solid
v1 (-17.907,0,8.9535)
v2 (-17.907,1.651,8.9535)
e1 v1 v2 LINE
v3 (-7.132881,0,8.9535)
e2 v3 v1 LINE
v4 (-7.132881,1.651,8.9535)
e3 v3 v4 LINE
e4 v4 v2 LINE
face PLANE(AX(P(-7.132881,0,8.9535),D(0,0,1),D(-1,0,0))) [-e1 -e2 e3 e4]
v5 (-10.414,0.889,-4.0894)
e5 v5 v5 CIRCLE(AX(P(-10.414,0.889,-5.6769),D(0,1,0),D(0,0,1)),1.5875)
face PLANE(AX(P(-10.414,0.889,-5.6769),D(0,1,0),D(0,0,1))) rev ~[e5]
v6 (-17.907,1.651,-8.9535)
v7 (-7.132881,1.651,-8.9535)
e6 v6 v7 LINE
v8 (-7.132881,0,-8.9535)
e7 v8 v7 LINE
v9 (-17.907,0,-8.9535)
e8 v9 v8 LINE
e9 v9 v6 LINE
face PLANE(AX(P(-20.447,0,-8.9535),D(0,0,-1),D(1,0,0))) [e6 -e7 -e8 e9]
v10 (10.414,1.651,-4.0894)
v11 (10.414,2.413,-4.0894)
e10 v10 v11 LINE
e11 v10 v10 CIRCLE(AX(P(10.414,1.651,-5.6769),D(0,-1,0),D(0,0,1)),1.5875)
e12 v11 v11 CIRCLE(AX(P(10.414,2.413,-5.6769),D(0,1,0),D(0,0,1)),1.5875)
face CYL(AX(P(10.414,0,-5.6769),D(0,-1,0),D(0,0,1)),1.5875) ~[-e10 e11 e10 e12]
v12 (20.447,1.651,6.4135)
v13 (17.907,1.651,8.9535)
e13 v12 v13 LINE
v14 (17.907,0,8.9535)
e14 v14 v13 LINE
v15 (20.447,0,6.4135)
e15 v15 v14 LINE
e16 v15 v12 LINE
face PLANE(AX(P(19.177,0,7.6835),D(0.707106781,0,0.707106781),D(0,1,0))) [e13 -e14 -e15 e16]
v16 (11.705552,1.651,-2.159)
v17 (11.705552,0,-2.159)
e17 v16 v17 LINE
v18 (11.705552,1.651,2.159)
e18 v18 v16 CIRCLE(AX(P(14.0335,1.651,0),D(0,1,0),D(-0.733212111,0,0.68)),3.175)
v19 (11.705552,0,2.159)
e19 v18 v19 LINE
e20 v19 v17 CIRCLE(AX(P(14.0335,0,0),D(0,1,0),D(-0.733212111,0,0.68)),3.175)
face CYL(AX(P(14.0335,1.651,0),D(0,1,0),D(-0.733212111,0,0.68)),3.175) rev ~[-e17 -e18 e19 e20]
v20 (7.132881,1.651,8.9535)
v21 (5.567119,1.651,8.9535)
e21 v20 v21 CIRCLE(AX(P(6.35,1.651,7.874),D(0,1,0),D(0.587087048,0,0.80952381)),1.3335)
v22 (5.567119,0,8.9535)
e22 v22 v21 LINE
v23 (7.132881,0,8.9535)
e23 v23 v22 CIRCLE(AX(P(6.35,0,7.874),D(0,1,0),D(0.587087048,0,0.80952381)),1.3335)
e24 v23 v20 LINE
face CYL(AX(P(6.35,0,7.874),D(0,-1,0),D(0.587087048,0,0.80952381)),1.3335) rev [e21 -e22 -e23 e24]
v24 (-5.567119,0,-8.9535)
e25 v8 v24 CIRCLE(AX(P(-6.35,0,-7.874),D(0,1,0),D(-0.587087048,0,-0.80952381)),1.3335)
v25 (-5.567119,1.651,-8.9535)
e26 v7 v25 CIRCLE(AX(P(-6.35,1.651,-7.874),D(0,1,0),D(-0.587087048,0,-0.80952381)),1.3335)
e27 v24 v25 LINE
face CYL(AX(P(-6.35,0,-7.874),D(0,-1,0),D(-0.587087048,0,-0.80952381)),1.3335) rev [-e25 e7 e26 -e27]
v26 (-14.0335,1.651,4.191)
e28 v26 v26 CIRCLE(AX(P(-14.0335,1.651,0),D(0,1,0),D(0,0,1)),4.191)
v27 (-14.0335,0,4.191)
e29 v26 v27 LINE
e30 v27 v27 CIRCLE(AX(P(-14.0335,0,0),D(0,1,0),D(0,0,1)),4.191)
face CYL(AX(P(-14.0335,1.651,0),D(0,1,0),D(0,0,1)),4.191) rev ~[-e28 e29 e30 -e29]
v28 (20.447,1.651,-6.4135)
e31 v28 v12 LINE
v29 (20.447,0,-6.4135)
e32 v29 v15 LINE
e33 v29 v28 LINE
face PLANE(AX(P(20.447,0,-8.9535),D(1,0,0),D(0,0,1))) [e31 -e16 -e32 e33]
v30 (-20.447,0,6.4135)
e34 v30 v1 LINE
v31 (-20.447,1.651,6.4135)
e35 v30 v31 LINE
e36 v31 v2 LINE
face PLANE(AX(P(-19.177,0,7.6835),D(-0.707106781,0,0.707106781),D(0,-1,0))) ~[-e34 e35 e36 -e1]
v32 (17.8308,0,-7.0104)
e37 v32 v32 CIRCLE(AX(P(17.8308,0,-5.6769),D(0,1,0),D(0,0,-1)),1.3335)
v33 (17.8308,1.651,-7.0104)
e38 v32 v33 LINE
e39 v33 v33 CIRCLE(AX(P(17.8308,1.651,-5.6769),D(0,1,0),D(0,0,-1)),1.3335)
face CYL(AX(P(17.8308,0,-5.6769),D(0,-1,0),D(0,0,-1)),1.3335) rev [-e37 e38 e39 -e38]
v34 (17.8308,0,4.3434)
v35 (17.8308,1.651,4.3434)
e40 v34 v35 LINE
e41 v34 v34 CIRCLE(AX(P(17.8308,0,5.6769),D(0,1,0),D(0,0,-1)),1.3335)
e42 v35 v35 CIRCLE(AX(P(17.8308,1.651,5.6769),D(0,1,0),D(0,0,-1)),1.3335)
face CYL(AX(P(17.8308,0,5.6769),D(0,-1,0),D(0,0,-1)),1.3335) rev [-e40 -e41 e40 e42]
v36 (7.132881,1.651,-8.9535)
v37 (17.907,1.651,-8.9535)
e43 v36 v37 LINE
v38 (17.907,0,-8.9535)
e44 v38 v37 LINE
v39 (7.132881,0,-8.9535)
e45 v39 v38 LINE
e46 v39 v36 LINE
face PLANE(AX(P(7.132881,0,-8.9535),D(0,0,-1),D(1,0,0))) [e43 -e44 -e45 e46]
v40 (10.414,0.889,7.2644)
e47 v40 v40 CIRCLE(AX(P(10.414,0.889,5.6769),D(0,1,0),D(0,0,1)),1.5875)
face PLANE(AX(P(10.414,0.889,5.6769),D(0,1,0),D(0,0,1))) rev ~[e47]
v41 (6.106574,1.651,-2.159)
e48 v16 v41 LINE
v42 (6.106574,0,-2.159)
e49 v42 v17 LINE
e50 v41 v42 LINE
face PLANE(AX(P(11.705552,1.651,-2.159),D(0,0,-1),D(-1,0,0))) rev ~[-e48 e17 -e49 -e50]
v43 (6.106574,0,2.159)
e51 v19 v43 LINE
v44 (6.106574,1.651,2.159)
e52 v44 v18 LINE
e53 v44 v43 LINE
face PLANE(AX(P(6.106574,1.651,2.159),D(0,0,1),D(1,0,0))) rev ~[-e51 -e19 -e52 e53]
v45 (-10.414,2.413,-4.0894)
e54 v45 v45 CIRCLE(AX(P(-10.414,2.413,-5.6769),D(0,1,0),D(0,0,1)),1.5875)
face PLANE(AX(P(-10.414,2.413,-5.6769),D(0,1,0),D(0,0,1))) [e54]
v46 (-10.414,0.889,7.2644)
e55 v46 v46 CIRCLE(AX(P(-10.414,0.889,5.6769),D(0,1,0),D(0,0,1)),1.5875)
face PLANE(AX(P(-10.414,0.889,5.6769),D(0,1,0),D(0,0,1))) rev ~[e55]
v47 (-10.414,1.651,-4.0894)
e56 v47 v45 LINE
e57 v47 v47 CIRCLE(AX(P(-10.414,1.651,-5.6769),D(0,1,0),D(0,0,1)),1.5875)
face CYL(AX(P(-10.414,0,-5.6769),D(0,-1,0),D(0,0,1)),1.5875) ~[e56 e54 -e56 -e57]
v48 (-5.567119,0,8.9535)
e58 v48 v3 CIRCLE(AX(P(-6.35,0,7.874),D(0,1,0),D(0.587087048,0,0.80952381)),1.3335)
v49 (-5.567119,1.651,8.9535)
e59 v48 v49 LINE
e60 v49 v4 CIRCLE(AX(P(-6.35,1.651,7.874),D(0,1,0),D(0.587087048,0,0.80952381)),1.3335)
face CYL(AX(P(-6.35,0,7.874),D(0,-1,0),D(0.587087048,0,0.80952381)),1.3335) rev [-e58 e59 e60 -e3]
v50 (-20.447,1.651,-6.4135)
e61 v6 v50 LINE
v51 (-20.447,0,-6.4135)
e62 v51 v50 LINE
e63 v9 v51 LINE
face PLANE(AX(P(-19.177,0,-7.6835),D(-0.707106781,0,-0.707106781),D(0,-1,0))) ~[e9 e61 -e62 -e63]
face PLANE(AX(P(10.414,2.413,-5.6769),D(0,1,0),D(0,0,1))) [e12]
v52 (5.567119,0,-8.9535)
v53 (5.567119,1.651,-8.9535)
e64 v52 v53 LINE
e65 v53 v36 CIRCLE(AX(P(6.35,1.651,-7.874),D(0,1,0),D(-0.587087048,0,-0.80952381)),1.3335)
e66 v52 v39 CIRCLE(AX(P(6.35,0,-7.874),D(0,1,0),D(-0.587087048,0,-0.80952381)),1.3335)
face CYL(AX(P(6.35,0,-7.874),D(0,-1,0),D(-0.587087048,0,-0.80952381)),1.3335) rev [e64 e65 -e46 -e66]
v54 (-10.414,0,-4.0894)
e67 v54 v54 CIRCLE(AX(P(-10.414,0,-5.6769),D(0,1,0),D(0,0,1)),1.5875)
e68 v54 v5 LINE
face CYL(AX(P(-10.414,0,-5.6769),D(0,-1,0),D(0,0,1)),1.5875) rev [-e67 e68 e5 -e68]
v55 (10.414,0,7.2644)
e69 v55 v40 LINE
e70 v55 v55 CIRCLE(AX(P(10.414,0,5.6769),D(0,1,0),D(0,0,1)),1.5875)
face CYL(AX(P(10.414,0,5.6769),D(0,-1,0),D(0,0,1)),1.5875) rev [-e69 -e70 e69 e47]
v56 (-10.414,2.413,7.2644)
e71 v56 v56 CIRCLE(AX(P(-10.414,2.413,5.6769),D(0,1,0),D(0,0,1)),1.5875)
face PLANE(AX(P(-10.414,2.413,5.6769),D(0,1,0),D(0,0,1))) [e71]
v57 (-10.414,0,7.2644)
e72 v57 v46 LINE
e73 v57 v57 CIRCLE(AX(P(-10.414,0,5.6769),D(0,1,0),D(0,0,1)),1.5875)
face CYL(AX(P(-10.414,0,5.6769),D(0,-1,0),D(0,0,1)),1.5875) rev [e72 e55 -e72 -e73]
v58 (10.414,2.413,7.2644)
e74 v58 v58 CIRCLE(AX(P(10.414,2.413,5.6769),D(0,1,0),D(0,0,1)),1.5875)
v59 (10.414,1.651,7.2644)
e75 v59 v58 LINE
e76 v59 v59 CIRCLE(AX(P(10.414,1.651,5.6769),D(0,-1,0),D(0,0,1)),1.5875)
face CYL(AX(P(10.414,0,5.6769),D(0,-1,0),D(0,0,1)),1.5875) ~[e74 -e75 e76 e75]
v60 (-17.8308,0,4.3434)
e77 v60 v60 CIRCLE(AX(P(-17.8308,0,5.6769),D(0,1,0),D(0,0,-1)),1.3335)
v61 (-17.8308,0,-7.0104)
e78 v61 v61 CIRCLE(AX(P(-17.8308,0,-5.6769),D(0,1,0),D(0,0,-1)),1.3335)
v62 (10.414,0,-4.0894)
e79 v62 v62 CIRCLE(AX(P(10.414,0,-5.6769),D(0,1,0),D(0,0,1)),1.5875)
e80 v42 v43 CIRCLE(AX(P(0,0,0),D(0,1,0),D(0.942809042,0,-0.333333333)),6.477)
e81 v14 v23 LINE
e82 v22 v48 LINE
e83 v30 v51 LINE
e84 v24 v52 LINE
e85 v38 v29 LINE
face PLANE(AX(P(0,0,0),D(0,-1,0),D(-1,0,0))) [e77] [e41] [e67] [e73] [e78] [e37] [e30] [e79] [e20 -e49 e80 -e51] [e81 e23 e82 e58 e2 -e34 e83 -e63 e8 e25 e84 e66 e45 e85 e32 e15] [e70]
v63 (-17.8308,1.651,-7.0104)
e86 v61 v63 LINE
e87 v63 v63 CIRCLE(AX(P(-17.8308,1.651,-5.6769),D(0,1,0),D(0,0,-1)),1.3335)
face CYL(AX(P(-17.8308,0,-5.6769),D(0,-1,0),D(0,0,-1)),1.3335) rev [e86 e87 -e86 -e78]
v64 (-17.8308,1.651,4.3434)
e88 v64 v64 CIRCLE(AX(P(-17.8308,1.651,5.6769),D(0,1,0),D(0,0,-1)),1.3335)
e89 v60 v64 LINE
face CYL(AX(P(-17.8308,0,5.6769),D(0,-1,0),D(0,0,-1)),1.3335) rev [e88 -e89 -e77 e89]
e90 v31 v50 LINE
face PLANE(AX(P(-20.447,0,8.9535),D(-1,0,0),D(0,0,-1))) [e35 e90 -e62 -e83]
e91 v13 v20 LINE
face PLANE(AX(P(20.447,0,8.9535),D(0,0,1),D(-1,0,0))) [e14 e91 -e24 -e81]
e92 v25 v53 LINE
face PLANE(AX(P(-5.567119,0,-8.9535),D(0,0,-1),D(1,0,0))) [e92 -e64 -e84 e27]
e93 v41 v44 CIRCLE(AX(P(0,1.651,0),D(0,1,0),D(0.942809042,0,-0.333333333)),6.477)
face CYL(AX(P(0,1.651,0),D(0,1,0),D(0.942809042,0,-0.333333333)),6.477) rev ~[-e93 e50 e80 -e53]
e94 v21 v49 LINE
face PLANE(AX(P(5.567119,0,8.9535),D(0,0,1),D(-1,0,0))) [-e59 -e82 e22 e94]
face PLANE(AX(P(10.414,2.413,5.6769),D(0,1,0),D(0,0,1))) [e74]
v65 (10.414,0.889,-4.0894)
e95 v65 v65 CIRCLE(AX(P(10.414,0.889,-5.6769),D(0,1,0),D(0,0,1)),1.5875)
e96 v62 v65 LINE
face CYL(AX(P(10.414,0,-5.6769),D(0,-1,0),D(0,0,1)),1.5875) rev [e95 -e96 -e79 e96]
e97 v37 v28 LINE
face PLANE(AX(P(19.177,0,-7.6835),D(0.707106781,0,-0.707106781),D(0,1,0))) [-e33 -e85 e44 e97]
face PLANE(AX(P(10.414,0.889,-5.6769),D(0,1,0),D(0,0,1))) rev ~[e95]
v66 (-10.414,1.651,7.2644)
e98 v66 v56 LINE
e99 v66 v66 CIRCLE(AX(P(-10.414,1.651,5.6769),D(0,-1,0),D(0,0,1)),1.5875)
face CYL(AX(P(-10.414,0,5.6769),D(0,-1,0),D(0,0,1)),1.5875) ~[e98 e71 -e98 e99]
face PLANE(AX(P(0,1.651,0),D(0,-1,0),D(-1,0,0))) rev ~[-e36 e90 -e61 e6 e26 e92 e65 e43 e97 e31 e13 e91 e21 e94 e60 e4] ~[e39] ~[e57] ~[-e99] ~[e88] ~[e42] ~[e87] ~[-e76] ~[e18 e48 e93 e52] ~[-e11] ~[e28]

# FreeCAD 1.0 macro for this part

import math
import FreeCAD as App
import Part
import Sketcher
from FreeCAD import Vector
Q = App.Units.Quantity


def edges_at(feature, points):
    """Names of the edges that pass closest to the given points."""
    edges = feature.Shape.Edges
    near = lambda p: min(range(len(edges)), key=lambda i: edges[i].distToShape(Part.Vertex(*p))[0])
    return sorted({f"Edge{near(p) + 1}" for p in points})

doc = App.newDocument("Part")
body = doc.addObject("PartDesign::Body", "Body")

# Sketch on XZ plane
sketch1 = body.newObject("Sketcher::SketchObject", "Sketch")
sketch1.AttachmentSupport = (doc.getObject("XZ_Plane"), [""])
sketch1.MapMode = "FlatFace"
sketch1.addGeometry([
    Part.LineSegment(Vector(5.6, -9, 0), Vector(-5.6, -9, 0)),  # 0
    Part.ArcOfCircle(Part.Circle(Vector(-6.3, -7.9, 0), Vector(0, 0, 1), 1.3), math.radians(-54), math.radians(234)),  # 1
    Part.LineSegment(Vector(-7.1, -9, 0), Vector(-20.4, -9, 0)),  # 2
    Part.LineSegment(Vector(-20.4, -9, 0), Vector(-20.4, 9, 0)),  # 3
    Part.LineSegment(Vector(-20.4, 9, 0), Vector(-7.1, 9, 0)),  # 4
    Part.ArcOfCircle(Part.Circle(Vector(-6.3, 7.9, 0), Vector(0, 0, 1), 1.3), math.radians(126), math.radians(414)),  # 5
    Part.LineSegment(Vector(-5.6, 9, 0), Vector(5.6, 9, 0)),  # 6
    Part.ArcOfCircle(Part.Circle(Vector(6.3, 7.9, 0), Vector(0, 0, 1), 1.3), math.radians(126), math.radians(414)),  # 7
    Part.LineSegment(Vector(7.1, 9, 0), Vector(20.4, 9, 0)),  # 8
    Part.LineSegment(Vector(20.4, 9, 0), Vector(20.4, -9, 0)),  # 9
    Part.LineSegment(Vector(20.4, -9, 0), Vector(7.1, -9, 0)),  # 10
    Part.ArcOfCircle(Part.Circle(Vector(6.3, -7.9, 0), Vector(0, 0, 1), 1.3), math.radians(-54), math.radians(234)),  # 11
    Part.Circle(Vector(17.8, 5.7, 0), Vector(0, 0, 1), 1.3),  # 12
    Part.Circle(Vector(10.4, 5.7, 0), Vector(0, 0, 1), 1.6),  # 13
    Part.Circle(Vector(-10.4, 5.7, 0), Vector(0, 0, 1), 1.6),  # 14
    Part.Circle(Vector(-17.8, 5.7, 0), Vector(0, 0, 1), 1.3),  # 15
    Part.Circle(Vector(17.8, -5.7, 0), Vector(0, 0, 1), 1.3),  # 16
    Part.Circle(Vector(10.4, -5.7, 0), Vector(0, 0, 1), 1.6),  # 17
    Part.Circle(Vector(-10.4, -5.7, 0), Vector(0, 0, 1), 1.6),  # 18
    Part.Circle(Vector(-17.8, -5.7, 0), Vector(0, 0, 1), 1.3),  # 19
], False)
sketch1.addConstraint([
    Sketcher.Constraint("Coincident", 0, 2, 1, 1),
    Sketcher.Constraint("Coincident", 1, 2, 2, 1),
    Sketcher.Constraint("Coincident", 2, 2, 3, 1),
    Sketcher.Constraint("Coincident", 3, 2, 4, 1),
    Sketcher.Constraint("Coincident", 4, 2, 5, 1),
    Sketcher.Constraint("Coincident", 5, 2, 6, 1),
    Sketcher.Constraint("Coincident", 6, 2, 7, 1),
    Sketcher.Constraint("Coincident", 7, 2, 8, 1),
    Sketcher.Constraint("Coincident", 8, 2, 9, 1),
    Sketcher.Constraint("Coincident", 9, 2, 10, 1),
    Sketcher.Constraint("Coincident", 10, 2, 11, 1),
    Sketcher.Constraint("Coincident", 11, 2, 0, 1),
    Sketcher.Constraint("Horizontal", 0),
    Sketcher.Constraint("Horizontal", 2),
    Sketcher.Constraint("Vertical", 3),
    Sketcher.Constraint("Horizontal", 4),
    Sketcher.Constraint("Horizontal", 6),
    Sketcher.Constraint("Horizontal", 8),
    Sketcher.Constraint("Vertical", 9),
    Sketcher.Constraint("Horizontal", 10),
    Sketcher.Constraint("Equal", 1, 5),
    Sketcher.Constraint("Equal", 5, 7),
    Sketcher.Constraint("Equal", 7, 11),
    Sketcher.Constraint("Equal", 11, 12),
    Sketcher.Constraint("Equal", 13, 14),
    Sketcher.Constraint("Equal", 12, 15),
    Sketcher.Constraint("Equal", 15, 16),
    Sketcher.Constraint("Equal", 14, 17),
    Sketcher.Constraint("Equal", 17, 18),
    Sketcher.Constraint("Equal", 16, 19),
    Sketcher.Constraint("Symmetric", 1, 3, 7, 3, -1, 1),
    Sketcher.Constraint("Symmetric", 5, 3, 11, 3, -1, 1),
    Sketcher.Constraint("Symmetric", 15, 3, 16, 3, -1, 1),
    Sketcher.Constraint("Symmetric", 14, 3, 17, 3, -1, 1),
    Sketcher.Constraint("Symmetric", 13, 3, 18, 3, -1, 1),
    Sketcher.Constraint("Symmetric", 12, 3, 19, 3, -1, 1),
    Sketcher.Constraint("Symmetric", 2, 2, 8, 2, -1, 1),
    Sketcher.Constraint("Symmetric", 5, 3, 7, 3, -2),
    Sketcher.Constraint("Symmetric", 13, 3, 14, 3, -2),
    Sketcher.Constraint("Symmetric", 12, 3, 15, 3, -2),
    Sketcher.Constraint("Horizontal", 12, 3, 13, 3),
    Sketcher.Constraint("Horizontal", 0, 2, 1, 2),
    Sketcher.Constraint("Horizontal", 4, 2, 5, 2),
    Sketcher.Constraint("Horizontal", 6, 2, 7, 2),
    Sketcher.Constraint("Horizontal", 2, 2, 9, 2),
    Sketcher.Constraint("Diameter", 12, Q("0.105 in")),
    Sketcher.Constraint("Diameter", 13, Q("0.125 in")),
    Sketcher.Constraint("DistanceX", 5, 3, 7, 3, Q("0.5 in")),
    Sketcher.Constraint("DistanceY", 3, 1, 3, 2, Q("0.705 in")),
    Sketcher.Constraint("DistanceY", 1, 3, -1, 1, Q("0.31 in")),
    Sketcher.Constraint("DistanceX", -1, 1, 13, 3, Q("0.41 in")),
    Sketcher.Constraint("DistanceX", -1, 1, 12, 3, Q("0.702 in")),
    Sketcher.Constraint("DistanceX", 2, 2, -1, 1, Q("0.805 in")),
    Sketcher.Constraint("DistanceY", 16, 3, 12, 3, Q("0.447 in")),
])
pad1 = body.newObject("PartDesign::Pad", "Pad")
pad1.Profile = sketch1
pad1.Length = Q("0.065 in")
pad1.Reversed = True
doc.recompute()

chamfer = body.newObject("PartDesign::Chamfer", "Chamfer")
chamfer.Base = (pad1, edges_at(pad1, [
    (20.447, 0.826, -8.954),
    (20.447, 0.826, 8.954),
    (-20.447, 0.826, 8.954),
    (-20.447, 0.826, -8.954),
]))
chamfer.Size = Q("0.1 in")

# Sketch on XZ plane
sketch2 = body.newObject("Sketcher::SketchObject", "Sketch001")
sketch2.AttachmentSupport = (doc.getObject("XZ_Plane"), [""])
sketch2.MapMode = "FlatFace"
sketch2.addGeometry([
    Part.Circle(Vector(-10.4, -5.7, 0), Vector(0, 0, 1), 1.6),
    Part.Circle(Vector(10.4, -5.7, 0), Vector(0, 0, 1), 1.6),
    Part.Circle(Vector(10.4, 5.7, 0), Vector(0, 0, 1), 1.6),
    Part.Circle(Vector(-10.4, 5.7, 0), Vector(0, 0, 1), 1.6),
], False)
sketch2.addConstraint([
    Sketcher.Constraint("Equal", 0, 1),
    Sketcher.Constraint("Equal", 1, 2),
    Sketcher.Constraint("Equal", 2, 3),
    Sketcher.Constraint("Symmetric", 0, 3, 2, 3, -1, 1),
    Sketcher.Constraint("Symmetric", 1, 3, 3, 3, -1, 1),
    Sketcher.Constraint("Symmetric", 0, 3, 1, 3, -2),
    Sketcher.Constraint("Diameter", 0, Q("0.125 in")),
    Sketcher.Constraint("DistanceX", 0, 3, -1, 1, Q("0.41 in")),
    Sketcher.Constraint("DistanceY", 1, 3, 2, 3, Q("0.447 in")),
])
pad2 = body.newObject("PartDesign::Pad", "Pad001")
pad2.Profile = sketch2
pad2.Length = Q("0.095 in")
pad2.Reversed = True

# Sketch on XZ plane
sketch3 = body.newObject("Sketcher::SketchObject", "Sketch002")
sketch3.AttachmentSupport = (doc.getObject("XZ_Plane"), [""])
sketch3.MapMode = "FlatFace"
sketch3.addGeometry([
    Part.Circle(Vector(-10.4, -5.7, 0), Vector(0, 0, 1), 1.6),
    Part.Circle(Vector(10.4, -5.7, 0), Vector(0, 0, 1), 1.6),
    Part.Circle(Vector(10.4, 5.7, 0), Vector(0, 0, 1), 1.6),
    Part.Circle(Vector(-10.4, 5.7, 0), Vector(0, 0, 1), 1.6),
], False)
sketch3.addConstraint([
    Sketcher.Constraint("Equal", 0, 1),
    Sketcher.Constraint("Equal", 1, 2),
    Sketcher.Constraint("Equal", 2, 3),
    Sketcher.Constraint("Symmetric", 0, 3, 2, 3, -1, 1),
    Sketcher.Constraint("Symmetric", 1, 3, 3, 3, -1, 1),
    Sketcher.Constraint("Symmetric", 0, 3, 1, 3, -2),
    Sketcher.Constraint("Diameter", 0, Q("0.125 in")),
    Sketcher.Constraint("DistanceX", 0, 3, -1, 1, Q("0.41 in")),
    Sketcher.Constraint("DistanceY", 1, 3, 2, 3, Q("0.447 in")),
])
pocket1 = body.newObject("PartDesign::Pocket", "Pocket")
pocket1.Profile = sketch3
pocket1.Length = Q("0.035 in")

# Sketch on XZ plane
sketch4 = body.newObject("Sketcher::SketchObject", "Sketch003")
sketch4.AttachmentSupport = (doc.getObject("XZ_Plane"), [""])
sketch4.MapMode = "FlatFace"
sketch4.AttachmentOffset = App.Placement(Vector(0, 0, -0.065 * 25.4), App.Rotation())
sketch4.addGeometry([
    Part.Circle(Vector(-14, 0, 0), Vector(0, 0, 1), 4.2),  # 0
    Part.LineSegment(Vector(6.1, 2.2, 0), Vector(11.7, 2.2, 0)),  # 1
    Part.ArcOfCircle(Part.Circle(Vector(14, 0, 0), Vector(0, 0, 1), 3.2), math.radians(-137), math.radians(137)),  # 2
    Part.LineSegment(Vector(11.7, -2.2, 0), Vector(6.1, -2.2, 0)),  # 3
    Part.ArcOfCircle(Part.Circle(Vector(0, 0, 0), Vector(0, 0, 1), 6.5), math.radians(19), math.radians(341)),  # 4
], False)
sketch4.addConstraint([
    Sketcher.Constraint("Coincident", 1, 2, 2, 2),
    Sketcher.Constraint("Coincident", 2, 1, 3, 1),
    Sketcher.Constraint("Coincident", 3, 2, 4, 2),
    Sketcher.Constraint("Coincident", 4, 1, 1, 1),
    Sketcher.Constraint("Horizontal", 1),
    Sketcher.Constraint("Horizontal", 3),
    Sketcher.Constraint("Coincident", 4, 3, -1, 1),
    Sketcher.Constraint("Symmetric", 0, 3, 2, 3, -1, 1),
    Sketcher.Constraint("Symmetric", 1, 2, 2, 1, -1),
    Sketcher.Constraint("Diameter", 0, Q("0.33 in")),
    Sketcher.Constraint("Radius", 2, Q("0.125 in")),
    Sketcher.Constraint("Radius", 4, Q("0.255 in")),
    Sketcher.Constraint("DistanceY", 2, 1, 1, 2, Q("0.17 in")),
    Sketcher.Constraint("DistanceX", 0, 3, 2, 3, Q("1.105 in")),
])
pocket2 = body.newObject("PartDesign::Pocket", "Pocket001")
pocket2.Profile = sketch4
pocket2.Type = "ThroughAll"
pocket2.Reversed = True

doc.recompute()
